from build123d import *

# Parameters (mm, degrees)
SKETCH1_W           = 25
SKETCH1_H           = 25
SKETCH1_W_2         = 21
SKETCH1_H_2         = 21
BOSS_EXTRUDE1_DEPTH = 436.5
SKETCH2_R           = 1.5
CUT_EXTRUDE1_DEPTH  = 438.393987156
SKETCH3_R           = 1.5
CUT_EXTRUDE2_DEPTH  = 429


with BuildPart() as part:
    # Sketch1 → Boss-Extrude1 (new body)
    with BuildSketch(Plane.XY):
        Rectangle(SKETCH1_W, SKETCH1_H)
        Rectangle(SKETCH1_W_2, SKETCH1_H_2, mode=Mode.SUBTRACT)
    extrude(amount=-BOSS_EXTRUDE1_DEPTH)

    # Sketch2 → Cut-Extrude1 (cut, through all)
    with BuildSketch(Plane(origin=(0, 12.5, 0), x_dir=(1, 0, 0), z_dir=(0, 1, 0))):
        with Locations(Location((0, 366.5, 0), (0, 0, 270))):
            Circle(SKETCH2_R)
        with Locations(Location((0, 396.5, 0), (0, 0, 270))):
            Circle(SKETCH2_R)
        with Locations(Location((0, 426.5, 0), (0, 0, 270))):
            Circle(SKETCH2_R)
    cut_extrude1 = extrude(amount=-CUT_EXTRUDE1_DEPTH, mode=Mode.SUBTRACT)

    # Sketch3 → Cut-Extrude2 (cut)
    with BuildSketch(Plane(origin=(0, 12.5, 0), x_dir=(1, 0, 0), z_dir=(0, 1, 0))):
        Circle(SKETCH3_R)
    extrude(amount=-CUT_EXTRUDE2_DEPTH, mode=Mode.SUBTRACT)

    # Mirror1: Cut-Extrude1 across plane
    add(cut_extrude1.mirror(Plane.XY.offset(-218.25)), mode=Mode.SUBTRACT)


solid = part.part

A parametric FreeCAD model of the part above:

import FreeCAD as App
import Part
import Sketcher
from FreeCAD import Vector
Q = App.Units.Quantity

doc = App.newDocument("Part")
body = doc.addObject("PartDesign::Body", "Body")

sketch1 = doc.addObject("Sketcher::SketchObject", "Sketch")
body.addObject(sketch1)
sketch1.AttachmentSupport = (doc.XY_Plane, [""])
sketch1.MapMode = "FlatFace"
sketch1.addGeometry([
    Part.LineSegment(Vector(-12.5, 12.5, 0), Vector(-12.5, -12.5, 0)),
    Part.LineSegment(Vector(-12.5, -12.5, 0), Vector(12.5, -12.5, 0)),
    Part.LineSegment(Vector(12.5, -12.5, 0), Vector(12.5, 12.5, 0)),
    Part.LineSegment(Vector(12.5, 12.5, 0), Vector(-12.5, 12.5, 0)),
    Part.LineSegment(Vector(10.5, -10.5, 0), Vector(-10.5, -10.5, 0)),
    Part.LineSegment(Vector(-10.5, -10.5, 0), Vector(-10.5, 10.5, 0)),
    Part.LineSegment(Vector(-10.5, 10.5, 0), Vector(10.5, 10.5, 0)),
    Part.LineSegment(Vector(10.5, 10.5, 0), Vector(10.5, -10.5, 0)),
], False)
sketch1.addConstraint([
    Sketcher.Constraint("Coincident", 0, 2, 1, 1),
    Sketcher.Constraint("Coincident", 1, 2, 2, 1),
    Sketcher.Constraint("Coincident", 2, 2, 3, 1),
    Sketcher.Constraint("Coincident", 3, 2, 0, 1),
    Sketcher.Constraint("Coincident", 4, 2, 5, 1),
    Sketcher.Constraint("Coincident", 5, 2, 6, 1),
    Sketcher.Constraint("Coincident", 6, 2, 7, 1),
    Sketcher.Constraint("Coincident", 7, 2, 4, 1),
    Sketcher.Constraint("Vertical", 0),
    Sketcher.Constraint("Horizontal", 1),
    Sketcher.Constraint("Vertical", 2),
    Sketcher.Constraint("Horizontal", 3),
    Sketcher.Constraint("Horizontal", 4),
    Sketcher.Constraint("Vertical", 5),
    Sketcher.Constraint("Horizontal", 6),
    Sketcher.Constraint("Vertical", 7),
    Sketcher.Constraint("Symmetric", 0, 2, 2, 2, -1, 1),
    Sketcher.Constraint("Symmetric", 4, 2, 6, 2, -1, 1),
    Sketcher.Constraint("Equal", 3, 0),
    Sketcher.Constraint("Equal", 6, 5),
    Sketcher.Constraint("DistanceX", 1, 1, 1, 2, Q("25 mm")),
    Sketcher.Constraint("DistanceX", 4, 2, 4, 1, Q("21 mm")),
])
pad1 = doc.addObject("PartDesign::Pad", "Pad")
body.addObject(pad1)
pad1.Profile = sketch1
pad1.Length = 436.5
pad1.Reversed = True

sketch2 = doc.addObject("Sketcher::SketchObject", "Sketch001")
body.addObject(sketch2)
sketch2.AttachmentSupport = (doc.XZ_Plane, [""])
sketch2.MapMode = "FlatFace"
sketch2.AttachmentOffset = App.Placement(Vector(0, 0, -12.5), App.Rotation())
sketch2.addGeometry([
    Part.Circle(Vector(0, -366.5, 0), Vector(0, 0, 1), 1.5),
    Part.Circle(Vector(0, -396.5, 0), Vector(0, 0, 1), 1.5),
    Part.Circle(Vector(0, -426.5, 0), Vector(0, 0, 1), 1.5),
], False)
sketch2.addConstraint([
    Sketcher.Constraint("Equal", 0, 1),
    Sketcher.Constraint("Equal", 1, 2),
    Sketcher.Constraint("PointOnObject", 0, 3, -2),
    Sketcher.Constraint("PointOnObject", 1, 3, -2),
    Sketcher.Constraint("PointOnObject", 2, 3, -2),
    Sketcher.Constraint("Diameter", 0, Q("3 mm")),
    Sketcher.Constraint("DistanceY", 1, 3, 0, 3, Q("30 mm")),
    Sketcher.Constraint("DistanceY", 2, 3, 1, 3, Q("30 mm")),
    Sketcher.Constraint("DistanceY", 0, 3, -1, 1, Q("366.5 mm")),
])
pocket1 = doc.addObject("PartDesign::Pocket", "Pocket")
body.addObject(pocket1)
pocket1.Profile = sketch2
pocket1.Type = "ThroughAll"
pocket1.Reversed = True

sketch3 = doc.addObject("Sketcher::SketchObject", "Sketch002")
body.addObject(sketch3)
sketch3.AttachmentSupport = (doc.XZ_Plane, [""])
sketch3.MapMode = "FlatFace"
sketch3.AttachmentOffset = App.Placement(Vector(0, 0, -12.5), App.Rotation())
sketch3.addGeometry(Part.Circle(Vector(0, 0, 0), Vector(0, 0, 1), 1.5), False)
sketch3.addConstraint([
    Sketcher.Constraint("Coincident", 0, 3, -1, 1),
    Sketcher.Constraint("Diameter", 0, Q("3 mm")),
])
pocket2 = doc.addObject("PartDesign::Pocket", "Pocket001")
body.addObject(pocket2)
pocket2.Profile = sketch3
pocket2.Length = 429
pocket2.Reversed = True
doc.recompute()

datumplane = doc.addObject("PartDesign::Plane", "DatumPlane")
body.addObject(datumplane)
datumplane.AttachmentSupport = (doc.XY_Plane, [""])
datumplane.MapMode = "FlatFace"
datumplane.AttachmentOffset = App.Placement(Vector(0, 0, -218.25), App.Rotation())
mirrored = doc.addObject("PartDesign::Mirrored", "Mirrored")
body.addObject(mirrored)
mirrored.Originals = [pocket1]
mirrored.MirrorPlane = (datumplane, [""])
body.Tip = mirrored

doc.recompute()
